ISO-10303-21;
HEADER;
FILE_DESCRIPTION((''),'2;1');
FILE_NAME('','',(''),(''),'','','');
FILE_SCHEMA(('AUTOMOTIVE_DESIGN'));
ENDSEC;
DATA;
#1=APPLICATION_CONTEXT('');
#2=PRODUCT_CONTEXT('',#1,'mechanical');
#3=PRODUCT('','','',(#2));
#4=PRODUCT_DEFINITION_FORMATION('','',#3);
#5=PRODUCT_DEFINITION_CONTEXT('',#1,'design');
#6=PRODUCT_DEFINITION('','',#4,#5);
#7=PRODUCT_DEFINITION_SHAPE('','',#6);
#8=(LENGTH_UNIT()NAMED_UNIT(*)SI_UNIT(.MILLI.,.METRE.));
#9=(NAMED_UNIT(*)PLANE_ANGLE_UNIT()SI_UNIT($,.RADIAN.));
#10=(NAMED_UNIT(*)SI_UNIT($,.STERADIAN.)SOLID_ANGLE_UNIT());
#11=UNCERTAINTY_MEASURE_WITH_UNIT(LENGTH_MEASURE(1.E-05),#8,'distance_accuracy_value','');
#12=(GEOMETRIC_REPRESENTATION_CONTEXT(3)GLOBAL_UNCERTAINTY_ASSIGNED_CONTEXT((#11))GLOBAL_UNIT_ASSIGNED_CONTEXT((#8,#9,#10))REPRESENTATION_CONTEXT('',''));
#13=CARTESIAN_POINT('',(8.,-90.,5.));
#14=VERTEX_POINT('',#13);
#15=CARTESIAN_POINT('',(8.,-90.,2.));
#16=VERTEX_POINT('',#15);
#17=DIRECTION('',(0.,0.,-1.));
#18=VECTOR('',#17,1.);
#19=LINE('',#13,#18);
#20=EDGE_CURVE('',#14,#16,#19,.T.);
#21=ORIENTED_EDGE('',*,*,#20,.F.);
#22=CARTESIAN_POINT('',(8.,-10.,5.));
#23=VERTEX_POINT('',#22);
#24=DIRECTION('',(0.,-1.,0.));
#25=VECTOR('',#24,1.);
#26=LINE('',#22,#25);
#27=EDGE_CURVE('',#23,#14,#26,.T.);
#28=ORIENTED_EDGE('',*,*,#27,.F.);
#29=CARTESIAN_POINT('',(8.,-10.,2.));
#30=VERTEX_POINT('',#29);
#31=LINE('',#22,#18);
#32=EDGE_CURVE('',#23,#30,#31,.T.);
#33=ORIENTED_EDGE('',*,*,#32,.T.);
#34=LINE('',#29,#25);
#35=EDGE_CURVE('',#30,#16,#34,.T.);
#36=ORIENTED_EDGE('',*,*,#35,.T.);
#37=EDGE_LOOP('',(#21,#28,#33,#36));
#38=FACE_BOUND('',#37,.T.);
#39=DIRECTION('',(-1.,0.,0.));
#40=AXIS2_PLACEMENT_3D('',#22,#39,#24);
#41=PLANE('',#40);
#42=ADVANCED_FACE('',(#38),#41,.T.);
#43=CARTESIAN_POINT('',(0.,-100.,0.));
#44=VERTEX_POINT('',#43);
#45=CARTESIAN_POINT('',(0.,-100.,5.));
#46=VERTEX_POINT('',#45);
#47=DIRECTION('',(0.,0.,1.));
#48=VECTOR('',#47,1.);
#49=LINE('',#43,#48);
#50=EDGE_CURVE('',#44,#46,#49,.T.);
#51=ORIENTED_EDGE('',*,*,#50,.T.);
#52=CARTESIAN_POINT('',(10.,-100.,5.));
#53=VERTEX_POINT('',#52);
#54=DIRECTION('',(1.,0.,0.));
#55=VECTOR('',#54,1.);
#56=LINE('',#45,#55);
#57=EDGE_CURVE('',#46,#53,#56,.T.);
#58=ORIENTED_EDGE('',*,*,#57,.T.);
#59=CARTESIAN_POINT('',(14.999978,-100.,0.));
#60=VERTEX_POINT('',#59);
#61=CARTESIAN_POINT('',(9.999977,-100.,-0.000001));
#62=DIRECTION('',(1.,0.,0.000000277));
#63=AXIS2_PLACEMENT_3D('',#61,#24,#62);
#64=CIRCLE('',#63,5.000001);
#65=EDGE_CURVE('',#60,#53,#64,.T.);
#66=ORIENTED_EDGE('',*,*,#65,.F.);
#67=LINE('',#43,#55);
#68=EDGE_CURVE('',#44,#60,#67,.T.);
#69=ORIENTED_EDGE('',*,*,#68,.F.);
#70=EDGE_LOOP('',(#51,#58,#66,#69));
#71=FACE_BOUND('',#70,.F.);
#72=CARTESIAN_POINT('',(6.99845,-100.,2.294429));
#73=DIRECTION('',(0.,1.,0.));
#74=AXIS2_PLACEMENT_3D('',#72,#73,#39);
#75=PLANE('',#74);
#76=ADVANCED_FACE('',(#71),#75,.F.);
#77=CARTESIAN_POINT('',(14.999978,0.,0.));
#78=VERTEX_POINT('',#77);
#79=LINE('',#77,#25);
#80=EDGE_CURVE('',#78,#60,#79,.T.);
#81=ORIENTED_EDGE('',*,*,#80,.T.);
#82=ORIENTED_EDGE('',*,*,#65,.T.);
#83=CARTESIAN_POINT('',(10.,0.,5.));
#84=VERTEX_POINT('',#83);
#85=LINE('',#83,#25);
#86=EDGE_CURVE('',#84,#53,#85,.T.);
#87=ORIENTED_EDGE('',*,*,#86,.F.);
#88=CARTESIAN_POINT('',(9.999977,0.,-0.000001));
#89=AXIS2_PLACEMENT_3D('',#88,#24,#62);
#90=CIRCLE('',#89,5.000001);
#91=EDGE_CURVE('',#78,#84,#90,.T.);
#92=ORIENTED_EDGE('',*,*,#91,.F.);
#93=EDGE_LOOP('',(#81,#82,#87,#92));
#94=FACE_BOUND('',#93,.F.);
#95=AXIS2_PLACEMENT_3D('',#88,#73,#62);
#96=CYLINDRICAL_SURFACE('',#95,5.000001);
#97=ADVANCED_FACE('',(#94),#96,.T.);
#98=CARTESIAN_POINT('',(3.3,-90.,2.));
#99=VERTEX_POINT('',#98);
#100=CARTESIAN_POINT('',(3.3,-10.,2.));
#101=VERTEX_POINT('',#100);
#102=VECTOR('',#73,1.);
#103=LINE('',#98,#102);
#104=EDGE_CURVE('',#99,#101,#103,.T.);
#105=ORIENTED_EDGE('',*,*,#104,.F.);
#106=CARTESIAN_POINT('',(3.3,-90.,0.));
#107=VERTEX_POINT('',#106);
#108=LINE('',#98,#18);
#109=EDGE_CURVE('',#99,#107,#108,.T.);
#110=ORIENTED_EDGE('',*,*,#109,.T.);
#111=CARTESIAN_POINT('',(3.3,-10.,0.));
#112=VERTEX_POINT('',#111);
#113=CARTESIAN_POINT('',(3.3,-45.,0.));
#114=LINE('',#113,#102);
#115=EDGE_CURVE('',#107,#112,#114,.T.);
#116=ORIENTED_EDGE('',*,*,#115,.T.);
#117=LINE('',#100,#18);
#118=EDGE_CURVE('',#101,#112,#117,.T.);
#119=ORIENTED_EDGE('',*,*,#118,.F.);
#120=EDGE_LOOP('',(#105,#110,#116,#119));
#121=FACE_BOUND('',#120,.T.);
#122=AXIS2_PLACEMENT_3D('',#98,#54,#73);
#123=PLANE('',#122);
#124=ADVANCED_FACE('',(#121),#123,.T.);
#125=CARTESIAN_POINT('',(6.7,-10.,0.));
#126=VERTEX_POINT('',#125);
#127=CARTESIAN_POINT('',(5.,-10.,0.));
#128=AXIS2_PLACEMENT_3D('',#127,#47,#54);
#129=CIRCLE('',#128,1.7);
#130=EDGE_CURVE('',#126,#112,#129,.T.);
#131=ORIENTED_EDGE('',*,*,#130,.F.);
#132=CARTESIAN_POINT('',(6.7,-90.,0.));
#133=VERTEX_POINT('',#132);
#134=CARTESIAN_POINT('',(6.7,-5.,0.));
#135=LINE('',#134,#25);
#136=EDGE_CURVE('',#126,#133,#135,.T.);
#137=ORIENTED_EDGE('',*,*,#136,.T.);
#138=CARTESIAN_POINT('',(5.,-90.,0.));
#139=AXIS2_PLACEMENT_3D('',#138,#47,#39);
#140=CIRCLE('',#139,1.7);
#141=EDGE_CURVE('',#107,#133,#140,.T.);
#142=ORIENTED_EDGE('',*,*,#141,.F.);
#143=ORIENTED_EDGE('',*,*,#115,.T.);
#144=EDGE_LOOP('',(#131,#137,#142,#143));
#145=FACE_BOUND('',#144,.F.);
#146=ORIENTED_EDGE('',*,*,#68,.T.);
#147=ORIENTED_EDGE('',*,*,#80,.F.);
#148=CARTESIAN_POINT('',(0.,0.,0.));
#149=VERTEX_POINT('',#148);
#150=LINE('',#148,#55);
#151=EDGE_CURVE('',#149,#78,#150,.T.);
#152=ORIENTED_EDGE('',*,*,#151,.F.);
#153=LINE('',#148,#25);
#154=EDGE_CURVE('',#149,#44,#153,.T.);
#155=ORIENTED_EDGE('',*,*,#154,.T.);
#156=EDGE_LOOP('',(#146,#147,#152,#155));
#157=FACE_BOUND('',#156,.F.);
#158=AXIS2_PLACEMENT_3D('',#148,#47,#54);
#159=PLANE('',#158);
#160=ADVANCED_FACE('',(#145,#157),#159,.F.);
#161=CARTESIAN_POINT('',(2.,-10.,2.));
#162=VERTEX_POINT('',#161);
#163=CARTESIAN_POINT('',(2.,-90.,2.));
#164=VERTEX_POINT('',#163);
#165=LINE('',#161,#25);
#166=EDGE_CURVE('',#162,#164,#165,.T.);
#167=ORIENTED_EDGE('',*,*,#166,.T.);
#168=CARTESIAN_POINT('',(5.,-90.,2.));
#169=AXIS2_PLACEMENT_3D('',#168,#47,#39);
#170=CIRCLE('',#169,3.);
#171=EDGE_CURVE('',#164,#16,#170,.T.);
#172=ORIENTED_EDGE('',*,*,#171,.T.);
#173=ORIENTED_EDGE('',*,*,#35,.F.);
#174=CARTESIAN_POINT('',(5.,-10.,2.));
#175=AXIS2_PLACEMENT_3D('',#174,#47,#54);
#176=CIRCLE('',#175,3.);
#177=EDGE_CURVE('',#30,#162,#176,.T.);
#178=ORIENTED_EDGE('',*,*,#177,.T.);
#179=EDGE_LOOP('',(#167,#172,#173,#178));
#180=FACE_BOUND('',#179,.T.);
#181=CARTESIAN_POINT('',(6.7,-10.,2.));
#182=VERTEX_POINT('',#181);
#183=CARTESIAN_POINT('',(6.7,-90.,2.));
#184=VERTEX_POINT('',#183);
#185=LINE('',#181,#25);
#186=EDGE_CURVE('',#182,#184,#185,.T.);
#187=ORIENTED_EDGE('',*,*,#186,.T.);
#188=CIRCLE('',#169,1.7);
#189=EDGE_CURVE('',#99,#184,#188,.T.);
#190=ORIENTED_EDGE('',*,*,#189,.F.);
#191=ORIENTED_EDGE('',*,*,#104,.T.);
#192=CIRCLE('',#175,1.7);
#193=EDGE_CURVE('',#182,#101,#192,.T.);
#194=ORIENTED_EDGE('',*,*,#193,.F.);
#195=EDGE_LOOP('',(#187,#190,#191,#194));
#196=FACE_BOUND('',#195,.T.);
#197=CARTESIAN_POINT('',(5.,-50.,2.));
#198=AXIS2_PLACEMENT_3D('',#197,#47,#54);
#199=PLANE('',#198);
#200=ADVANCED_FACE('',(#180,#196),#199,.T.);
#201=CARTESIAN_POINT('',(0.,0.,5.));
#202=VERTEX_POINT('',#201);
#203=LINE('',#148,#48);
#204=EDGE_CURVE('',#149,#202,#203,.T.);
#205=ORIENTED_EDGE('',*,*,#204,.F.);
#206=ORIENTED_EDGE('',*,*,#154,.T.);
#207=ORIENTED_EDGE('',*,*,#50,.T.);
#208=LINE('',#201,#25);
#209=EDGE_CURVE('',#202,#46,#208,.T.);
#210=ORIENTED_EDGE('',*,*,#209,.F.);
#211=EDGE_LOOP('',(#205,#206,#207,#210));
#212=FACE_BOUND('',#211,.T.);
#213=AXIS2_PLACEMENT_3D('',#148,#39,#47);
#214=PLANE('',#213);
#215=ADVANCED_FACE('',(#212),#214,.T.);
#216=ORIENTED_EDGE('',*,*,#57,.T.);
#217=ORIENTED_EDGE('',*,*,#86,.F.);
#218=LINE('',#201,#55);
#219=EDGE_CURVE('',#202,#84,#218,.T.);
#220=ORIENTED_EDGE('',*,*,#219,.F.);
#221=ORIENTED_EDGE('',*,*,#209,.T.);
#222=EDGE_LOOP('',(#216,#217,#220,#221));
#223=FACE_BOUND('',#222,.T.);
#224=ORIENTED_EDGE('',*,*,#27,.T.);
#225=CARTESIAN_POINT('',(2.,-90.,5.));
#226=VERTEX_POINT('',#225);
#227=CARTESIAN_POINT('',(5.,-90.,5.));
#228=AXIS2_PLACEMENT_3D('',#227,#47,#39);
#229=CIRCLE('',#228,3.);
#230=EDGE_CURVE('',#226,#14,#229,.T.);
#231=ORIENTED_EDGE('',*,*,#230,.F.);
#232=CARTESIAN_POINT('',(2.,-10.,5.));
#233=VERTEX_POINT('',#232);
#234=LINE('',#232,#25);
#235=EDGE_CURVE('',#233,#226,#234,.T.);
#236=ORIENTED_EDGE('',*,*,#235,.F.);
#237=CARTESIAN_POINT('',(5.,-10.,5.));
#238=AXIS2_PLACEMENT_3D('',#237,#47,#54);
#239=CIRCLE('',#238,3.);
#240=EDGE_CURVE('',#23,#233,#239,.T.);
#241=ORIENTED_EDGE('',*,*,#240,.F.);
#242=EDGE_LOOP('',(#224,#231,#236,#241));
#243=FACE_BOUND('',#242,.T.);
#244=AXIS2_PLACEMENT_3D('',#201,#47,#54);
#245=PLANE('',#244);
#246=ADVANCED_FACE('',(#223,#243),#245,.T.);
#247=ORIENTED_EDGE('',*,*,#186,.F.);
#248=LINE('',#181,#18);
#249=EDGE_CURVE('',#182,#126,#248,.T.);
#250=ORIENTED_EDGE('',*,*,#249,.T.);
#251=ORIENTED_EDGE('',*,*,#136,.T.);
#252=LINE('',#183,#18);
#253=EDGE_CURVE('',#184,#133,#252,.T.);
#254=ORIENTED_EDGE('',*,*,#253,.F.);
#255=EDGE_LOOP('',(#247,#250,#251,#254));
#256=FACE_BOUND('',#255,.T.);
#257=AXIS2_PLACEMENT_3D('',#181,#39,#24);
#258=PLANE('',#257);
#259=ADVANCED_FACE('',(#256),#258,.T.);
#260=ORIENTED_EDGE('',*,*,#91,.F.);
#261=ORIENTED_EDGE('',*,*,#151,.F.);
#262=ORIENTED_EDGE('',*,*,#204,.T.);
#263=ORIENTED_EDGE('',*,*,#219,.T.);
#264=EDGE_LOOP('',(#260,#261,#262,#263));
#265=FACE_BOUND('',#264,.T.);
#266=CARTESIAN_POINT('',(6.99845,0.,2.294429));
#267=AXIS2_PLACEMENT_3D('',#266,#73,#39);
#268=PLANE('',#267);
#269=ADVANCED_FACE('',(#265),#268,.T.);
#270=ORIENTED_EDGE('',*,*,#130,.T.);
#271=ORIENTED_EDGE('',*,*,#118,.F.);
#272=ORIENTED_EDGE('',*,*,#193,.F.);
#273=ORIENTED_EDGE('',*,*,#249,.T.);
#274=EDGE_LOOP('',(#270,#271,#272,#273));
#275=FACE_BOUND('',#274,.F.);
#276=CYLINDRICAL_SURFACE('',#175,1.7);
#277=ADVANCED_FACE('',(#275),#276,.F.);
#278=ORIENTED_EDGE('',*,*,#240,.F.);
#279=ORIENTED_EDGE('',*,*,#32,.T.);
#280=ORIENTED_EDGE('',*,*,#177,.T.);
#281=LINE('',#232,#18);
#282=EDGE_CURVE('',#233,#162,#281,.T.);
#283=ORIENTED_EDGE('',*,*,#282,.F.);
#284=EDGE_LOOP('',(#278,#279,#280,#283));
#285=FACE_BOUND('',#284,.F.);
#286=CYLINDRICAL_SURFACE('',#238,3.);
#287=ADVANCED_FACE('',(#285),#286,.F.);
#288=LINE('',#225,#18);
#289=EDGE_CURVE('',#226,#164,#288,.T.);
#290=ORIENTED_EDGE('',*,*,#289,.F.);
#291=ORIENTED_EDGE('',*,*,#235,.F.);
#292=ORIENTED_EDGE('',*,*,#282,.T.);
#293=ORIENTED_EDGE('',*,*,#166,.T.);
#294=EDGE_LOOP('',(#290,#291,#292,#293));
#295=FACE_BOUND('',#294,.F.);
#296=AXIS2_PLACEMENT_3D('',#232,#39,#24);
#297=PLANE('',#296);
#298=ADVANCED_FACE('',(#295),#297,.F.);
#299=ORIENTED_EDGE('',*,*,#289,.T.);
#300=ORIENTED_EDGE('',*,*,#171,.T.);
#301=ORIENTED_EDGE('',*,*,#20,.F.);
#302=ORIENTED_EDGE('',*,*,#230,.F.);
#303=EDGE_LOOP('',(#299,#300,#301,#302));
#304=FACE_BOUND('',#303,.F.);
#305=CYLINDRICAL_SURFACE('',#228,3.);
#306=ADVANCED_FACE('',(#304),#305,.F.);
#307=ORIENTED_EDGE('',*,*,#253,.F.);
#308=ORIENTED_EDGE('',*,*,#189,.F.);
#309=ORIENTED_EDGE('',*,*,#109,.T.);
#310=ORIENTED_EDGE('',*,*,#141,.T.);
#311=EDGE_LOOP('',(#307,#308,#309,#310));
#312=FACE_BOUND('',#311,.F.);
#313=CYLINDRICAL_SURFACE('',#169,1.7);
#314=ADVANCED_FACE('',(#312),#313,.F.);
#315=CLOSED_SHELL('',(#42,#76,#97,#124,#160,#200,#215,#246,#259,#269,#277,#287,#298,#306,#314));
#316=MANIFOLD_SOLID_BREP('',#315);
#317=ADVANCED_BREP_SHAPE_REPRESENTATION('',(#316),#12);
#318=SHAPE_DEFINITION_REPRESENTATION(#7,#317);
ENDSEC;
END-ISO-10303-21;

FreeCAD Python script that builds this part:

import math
import FreeCAD as App
import Part
import Sketcher
from FreeCAD import Vector

doc = App.newDocument("Part")
body = doc.addObject("PartDesign::Body", "Body")

# Sketch on XZ plane
sketch1 = body.newObject("Sketcher::SketchObject", "Sketch")
sketch1.AttachmentSupport = (doc.getObject("XZ_Plane"), [""])
sketch1.MapMode = "FlatFace"
sketch1.addGeometry(Part.LineSegment(Vector(0, 5, 0), Vector(0, 0, 0)), False)
sketch1.addGeometry(Part.LineSegment(Vector(0, 0, 0), Vector(15, 0, 0)), False)
sketch1.addGeometry(Part.ArcOfCircle(Part.Circle(Vector(10, 0, 0), Vector(0, 0, 1), 5), math.radians(0), math.radians(90)), False)
sketch1.addGeometry(Part.LineSegment(Vector(10, 5, 0), Vector(0, 5, 0)), False)
sketch1.addConstraint(Sketcher.Constraint("Coincident", 0, 2, 1, 1))
sketch1.addConstraint(Sketcher.Constraint("Coincident", 1, 2, 2, 1))
sketch1.addConstraint(Sketcher.Constraint("Coincident", 2, 2, 3, 1))
sketch1.addConstraint(Sketcher.Constraint("Coincident", 3, 2, 0, 1))
sketch1.addConstraint(Sketcher.Constraint("Vertical", 0))
sketch1.addConstraint(Sketcher.Constraint("Horizontal", 1))
sketch1.addConstraint(Sketcher.Constraint("Horizontal", 3))
sketch1.addConstraint(Sketcher.Constraint("Coincident", 0, 2, -1, 1))
sketch1.addConstraint(Sketcher.Constraint("PointOnObject", 2, 3, -1))
sketch1.addConstraint(Sketcher.Constraint("Radius", 2, 5.000001))
sketch1.addConstraint(Sketcher.Constraint("DistanceX", 3, 2, 3, 1, 10.0))
sketch1.addConstraint(Sketcher.Constraint("DistanceX", 1, 1, 1, 2, 14.999978))
pad1 = body.newObject("PartDesign::Pad", "Pad")
pad1.Profile = sketch1
pad1.Length = 100

# Sketch on XY plane
sketch2 = body.newObject("Sketcher::SketchObject", "Sketch001")
sketch2.AttachmentSupport = (doc.getObject("XY_Plane"), [""])
sketch2.MapMode = "FlatFace"
sketch2.AttachmentOffset = App.Placement(Vector(0, 0, 5), App.Rotation())
sketch2.addGeometry(Part.ArcOfCircle(Part.Circle(Vector(5, -10, 0), Vector(0, 0, 1), 3), math.radians(0), math.radians(180)), False)
sketch2.addGeometry(Part.LineSegment(Vector(2, -10, 0), Vector(2, -90, 0)), False)
sketch2.addGeometry(Part.ArcOfCircle(Part.Circle(Vector(5, -90, 0), Vector(0, 0, 1), 3), math.radians(180), math.radians(360)), False)
sketch2.addGeometry(Part.LineSegment(Vector(8, -90, 0), Vector(8, -10, 0)), False)
sketch2.addConstraint(Sketcher.Constraint("Tangent", 0, 2, 1, 1))
sketch2.addConstraint(Sketcher.Constraint("Tangent", 1, 2, 2, 1))
sketch2.addConstraint(Sketcher.Constraint("Tangent", 2, 2, 3, 1))
sketch2.addConstraint(Sketcher.Constraint("Tangent", 3, 2, 0, 1))
sketch2.addConstraint(Sketcher.Constraint("Vertical", 1))
sketch2.addConstraint(Sketcher.Constraint("Vertical", 3))
sketch2.addConstraint(Sketcher.Constraint("Radius", 0, 3.0))
sketch2.addConstraint(Sketcher.Constraint("DistanceY", 1, 2, 1, 1, 80.0))
sketch2.addConstraint(Sketcher.Constraint("DistanceX", -1, 1, 0, 3, 5.0))
sketch2.addConstraint(Sketcher.Constraint("DistanceY", 0, 3, -1, 1, 10.0))
pocket1 = body.newObject("PartDesign::Pocket", "Pocket")
pocket1.Profile = sketch2
pocket1.Length = 3

# Sketch on XY plane
sketch3 = body.newObject("Sketcher::SketchObject", "Sketch002")
sketch3.AttachmentSupport = (doc.getObject("XY_Plane"), [""])
sketch3.MapMode = "FlatFace"
sketch3.AttachmentOffset = App.Placement(Vector(0, 0, 2), App.Rotation())
sketch3.addGeometry(Part.LineSegment(Vector(6.7, -90, 0), Vector(6.7, -10, 0)), False)
sketch3.addGeometry(Part.ArcOfCircle(Part.Circle(Vector(5, -10, 0), Vector(0, 0, 1), 1.7), math.radians(0), math.radians(180)), False)
sketch3.addGeometry(Part.LineSegment(Vector(3.3, -10, 0), Vector(3.3, -90, 0)), False)
sketch3.addGeometry(Part.ArcOfCircle(Part.Circle(Vector(5, -90, 0), Vector(0, 0, 1), 1.7), math.radians(180), math.radians(360)), False)
sketch3.addConstraint(Sketcher.Constraint("Tangent", 0, 2, 1, 1))
sketch3.addConstraint(Sketcher.Constraint("Tangent", 1, 2, 2, 1))
sketch3.addConstraint(Sketcher.Constraint("Tangent", 2, 2, 3, 1))
sketch3.addConstraint(Sketcher.Constraint("Tangent", 3, 2, 0, 1))
sketch3.addConstraint(Sketcher.Constraint("Vertical", 0))
sketch3.addConstraint(Sketcher.Constraint("Vertical", 2))
sketch3.addConstraint(Sketcher.Constraint("Radius", 1, 1.7))
sketch3.addConstraint(Sketcher.Constraint("DistanceY", 0, 1, 0, 2, 80.0))
sketch3.addConstraint(Sketcher.Constraint("DistanceX", -1, 1, 1, 3, 5.0))
sketch3.addConstraint(Sketcher.Constraint("DistanceY", 1, 3, -1, 1, 10.0))
pocket2 = body.newObject("PartDesign::Pocket", "Pocket001")
pocket2.Profile = sketch3
pocket2.Length = 3

doc.recompute()
